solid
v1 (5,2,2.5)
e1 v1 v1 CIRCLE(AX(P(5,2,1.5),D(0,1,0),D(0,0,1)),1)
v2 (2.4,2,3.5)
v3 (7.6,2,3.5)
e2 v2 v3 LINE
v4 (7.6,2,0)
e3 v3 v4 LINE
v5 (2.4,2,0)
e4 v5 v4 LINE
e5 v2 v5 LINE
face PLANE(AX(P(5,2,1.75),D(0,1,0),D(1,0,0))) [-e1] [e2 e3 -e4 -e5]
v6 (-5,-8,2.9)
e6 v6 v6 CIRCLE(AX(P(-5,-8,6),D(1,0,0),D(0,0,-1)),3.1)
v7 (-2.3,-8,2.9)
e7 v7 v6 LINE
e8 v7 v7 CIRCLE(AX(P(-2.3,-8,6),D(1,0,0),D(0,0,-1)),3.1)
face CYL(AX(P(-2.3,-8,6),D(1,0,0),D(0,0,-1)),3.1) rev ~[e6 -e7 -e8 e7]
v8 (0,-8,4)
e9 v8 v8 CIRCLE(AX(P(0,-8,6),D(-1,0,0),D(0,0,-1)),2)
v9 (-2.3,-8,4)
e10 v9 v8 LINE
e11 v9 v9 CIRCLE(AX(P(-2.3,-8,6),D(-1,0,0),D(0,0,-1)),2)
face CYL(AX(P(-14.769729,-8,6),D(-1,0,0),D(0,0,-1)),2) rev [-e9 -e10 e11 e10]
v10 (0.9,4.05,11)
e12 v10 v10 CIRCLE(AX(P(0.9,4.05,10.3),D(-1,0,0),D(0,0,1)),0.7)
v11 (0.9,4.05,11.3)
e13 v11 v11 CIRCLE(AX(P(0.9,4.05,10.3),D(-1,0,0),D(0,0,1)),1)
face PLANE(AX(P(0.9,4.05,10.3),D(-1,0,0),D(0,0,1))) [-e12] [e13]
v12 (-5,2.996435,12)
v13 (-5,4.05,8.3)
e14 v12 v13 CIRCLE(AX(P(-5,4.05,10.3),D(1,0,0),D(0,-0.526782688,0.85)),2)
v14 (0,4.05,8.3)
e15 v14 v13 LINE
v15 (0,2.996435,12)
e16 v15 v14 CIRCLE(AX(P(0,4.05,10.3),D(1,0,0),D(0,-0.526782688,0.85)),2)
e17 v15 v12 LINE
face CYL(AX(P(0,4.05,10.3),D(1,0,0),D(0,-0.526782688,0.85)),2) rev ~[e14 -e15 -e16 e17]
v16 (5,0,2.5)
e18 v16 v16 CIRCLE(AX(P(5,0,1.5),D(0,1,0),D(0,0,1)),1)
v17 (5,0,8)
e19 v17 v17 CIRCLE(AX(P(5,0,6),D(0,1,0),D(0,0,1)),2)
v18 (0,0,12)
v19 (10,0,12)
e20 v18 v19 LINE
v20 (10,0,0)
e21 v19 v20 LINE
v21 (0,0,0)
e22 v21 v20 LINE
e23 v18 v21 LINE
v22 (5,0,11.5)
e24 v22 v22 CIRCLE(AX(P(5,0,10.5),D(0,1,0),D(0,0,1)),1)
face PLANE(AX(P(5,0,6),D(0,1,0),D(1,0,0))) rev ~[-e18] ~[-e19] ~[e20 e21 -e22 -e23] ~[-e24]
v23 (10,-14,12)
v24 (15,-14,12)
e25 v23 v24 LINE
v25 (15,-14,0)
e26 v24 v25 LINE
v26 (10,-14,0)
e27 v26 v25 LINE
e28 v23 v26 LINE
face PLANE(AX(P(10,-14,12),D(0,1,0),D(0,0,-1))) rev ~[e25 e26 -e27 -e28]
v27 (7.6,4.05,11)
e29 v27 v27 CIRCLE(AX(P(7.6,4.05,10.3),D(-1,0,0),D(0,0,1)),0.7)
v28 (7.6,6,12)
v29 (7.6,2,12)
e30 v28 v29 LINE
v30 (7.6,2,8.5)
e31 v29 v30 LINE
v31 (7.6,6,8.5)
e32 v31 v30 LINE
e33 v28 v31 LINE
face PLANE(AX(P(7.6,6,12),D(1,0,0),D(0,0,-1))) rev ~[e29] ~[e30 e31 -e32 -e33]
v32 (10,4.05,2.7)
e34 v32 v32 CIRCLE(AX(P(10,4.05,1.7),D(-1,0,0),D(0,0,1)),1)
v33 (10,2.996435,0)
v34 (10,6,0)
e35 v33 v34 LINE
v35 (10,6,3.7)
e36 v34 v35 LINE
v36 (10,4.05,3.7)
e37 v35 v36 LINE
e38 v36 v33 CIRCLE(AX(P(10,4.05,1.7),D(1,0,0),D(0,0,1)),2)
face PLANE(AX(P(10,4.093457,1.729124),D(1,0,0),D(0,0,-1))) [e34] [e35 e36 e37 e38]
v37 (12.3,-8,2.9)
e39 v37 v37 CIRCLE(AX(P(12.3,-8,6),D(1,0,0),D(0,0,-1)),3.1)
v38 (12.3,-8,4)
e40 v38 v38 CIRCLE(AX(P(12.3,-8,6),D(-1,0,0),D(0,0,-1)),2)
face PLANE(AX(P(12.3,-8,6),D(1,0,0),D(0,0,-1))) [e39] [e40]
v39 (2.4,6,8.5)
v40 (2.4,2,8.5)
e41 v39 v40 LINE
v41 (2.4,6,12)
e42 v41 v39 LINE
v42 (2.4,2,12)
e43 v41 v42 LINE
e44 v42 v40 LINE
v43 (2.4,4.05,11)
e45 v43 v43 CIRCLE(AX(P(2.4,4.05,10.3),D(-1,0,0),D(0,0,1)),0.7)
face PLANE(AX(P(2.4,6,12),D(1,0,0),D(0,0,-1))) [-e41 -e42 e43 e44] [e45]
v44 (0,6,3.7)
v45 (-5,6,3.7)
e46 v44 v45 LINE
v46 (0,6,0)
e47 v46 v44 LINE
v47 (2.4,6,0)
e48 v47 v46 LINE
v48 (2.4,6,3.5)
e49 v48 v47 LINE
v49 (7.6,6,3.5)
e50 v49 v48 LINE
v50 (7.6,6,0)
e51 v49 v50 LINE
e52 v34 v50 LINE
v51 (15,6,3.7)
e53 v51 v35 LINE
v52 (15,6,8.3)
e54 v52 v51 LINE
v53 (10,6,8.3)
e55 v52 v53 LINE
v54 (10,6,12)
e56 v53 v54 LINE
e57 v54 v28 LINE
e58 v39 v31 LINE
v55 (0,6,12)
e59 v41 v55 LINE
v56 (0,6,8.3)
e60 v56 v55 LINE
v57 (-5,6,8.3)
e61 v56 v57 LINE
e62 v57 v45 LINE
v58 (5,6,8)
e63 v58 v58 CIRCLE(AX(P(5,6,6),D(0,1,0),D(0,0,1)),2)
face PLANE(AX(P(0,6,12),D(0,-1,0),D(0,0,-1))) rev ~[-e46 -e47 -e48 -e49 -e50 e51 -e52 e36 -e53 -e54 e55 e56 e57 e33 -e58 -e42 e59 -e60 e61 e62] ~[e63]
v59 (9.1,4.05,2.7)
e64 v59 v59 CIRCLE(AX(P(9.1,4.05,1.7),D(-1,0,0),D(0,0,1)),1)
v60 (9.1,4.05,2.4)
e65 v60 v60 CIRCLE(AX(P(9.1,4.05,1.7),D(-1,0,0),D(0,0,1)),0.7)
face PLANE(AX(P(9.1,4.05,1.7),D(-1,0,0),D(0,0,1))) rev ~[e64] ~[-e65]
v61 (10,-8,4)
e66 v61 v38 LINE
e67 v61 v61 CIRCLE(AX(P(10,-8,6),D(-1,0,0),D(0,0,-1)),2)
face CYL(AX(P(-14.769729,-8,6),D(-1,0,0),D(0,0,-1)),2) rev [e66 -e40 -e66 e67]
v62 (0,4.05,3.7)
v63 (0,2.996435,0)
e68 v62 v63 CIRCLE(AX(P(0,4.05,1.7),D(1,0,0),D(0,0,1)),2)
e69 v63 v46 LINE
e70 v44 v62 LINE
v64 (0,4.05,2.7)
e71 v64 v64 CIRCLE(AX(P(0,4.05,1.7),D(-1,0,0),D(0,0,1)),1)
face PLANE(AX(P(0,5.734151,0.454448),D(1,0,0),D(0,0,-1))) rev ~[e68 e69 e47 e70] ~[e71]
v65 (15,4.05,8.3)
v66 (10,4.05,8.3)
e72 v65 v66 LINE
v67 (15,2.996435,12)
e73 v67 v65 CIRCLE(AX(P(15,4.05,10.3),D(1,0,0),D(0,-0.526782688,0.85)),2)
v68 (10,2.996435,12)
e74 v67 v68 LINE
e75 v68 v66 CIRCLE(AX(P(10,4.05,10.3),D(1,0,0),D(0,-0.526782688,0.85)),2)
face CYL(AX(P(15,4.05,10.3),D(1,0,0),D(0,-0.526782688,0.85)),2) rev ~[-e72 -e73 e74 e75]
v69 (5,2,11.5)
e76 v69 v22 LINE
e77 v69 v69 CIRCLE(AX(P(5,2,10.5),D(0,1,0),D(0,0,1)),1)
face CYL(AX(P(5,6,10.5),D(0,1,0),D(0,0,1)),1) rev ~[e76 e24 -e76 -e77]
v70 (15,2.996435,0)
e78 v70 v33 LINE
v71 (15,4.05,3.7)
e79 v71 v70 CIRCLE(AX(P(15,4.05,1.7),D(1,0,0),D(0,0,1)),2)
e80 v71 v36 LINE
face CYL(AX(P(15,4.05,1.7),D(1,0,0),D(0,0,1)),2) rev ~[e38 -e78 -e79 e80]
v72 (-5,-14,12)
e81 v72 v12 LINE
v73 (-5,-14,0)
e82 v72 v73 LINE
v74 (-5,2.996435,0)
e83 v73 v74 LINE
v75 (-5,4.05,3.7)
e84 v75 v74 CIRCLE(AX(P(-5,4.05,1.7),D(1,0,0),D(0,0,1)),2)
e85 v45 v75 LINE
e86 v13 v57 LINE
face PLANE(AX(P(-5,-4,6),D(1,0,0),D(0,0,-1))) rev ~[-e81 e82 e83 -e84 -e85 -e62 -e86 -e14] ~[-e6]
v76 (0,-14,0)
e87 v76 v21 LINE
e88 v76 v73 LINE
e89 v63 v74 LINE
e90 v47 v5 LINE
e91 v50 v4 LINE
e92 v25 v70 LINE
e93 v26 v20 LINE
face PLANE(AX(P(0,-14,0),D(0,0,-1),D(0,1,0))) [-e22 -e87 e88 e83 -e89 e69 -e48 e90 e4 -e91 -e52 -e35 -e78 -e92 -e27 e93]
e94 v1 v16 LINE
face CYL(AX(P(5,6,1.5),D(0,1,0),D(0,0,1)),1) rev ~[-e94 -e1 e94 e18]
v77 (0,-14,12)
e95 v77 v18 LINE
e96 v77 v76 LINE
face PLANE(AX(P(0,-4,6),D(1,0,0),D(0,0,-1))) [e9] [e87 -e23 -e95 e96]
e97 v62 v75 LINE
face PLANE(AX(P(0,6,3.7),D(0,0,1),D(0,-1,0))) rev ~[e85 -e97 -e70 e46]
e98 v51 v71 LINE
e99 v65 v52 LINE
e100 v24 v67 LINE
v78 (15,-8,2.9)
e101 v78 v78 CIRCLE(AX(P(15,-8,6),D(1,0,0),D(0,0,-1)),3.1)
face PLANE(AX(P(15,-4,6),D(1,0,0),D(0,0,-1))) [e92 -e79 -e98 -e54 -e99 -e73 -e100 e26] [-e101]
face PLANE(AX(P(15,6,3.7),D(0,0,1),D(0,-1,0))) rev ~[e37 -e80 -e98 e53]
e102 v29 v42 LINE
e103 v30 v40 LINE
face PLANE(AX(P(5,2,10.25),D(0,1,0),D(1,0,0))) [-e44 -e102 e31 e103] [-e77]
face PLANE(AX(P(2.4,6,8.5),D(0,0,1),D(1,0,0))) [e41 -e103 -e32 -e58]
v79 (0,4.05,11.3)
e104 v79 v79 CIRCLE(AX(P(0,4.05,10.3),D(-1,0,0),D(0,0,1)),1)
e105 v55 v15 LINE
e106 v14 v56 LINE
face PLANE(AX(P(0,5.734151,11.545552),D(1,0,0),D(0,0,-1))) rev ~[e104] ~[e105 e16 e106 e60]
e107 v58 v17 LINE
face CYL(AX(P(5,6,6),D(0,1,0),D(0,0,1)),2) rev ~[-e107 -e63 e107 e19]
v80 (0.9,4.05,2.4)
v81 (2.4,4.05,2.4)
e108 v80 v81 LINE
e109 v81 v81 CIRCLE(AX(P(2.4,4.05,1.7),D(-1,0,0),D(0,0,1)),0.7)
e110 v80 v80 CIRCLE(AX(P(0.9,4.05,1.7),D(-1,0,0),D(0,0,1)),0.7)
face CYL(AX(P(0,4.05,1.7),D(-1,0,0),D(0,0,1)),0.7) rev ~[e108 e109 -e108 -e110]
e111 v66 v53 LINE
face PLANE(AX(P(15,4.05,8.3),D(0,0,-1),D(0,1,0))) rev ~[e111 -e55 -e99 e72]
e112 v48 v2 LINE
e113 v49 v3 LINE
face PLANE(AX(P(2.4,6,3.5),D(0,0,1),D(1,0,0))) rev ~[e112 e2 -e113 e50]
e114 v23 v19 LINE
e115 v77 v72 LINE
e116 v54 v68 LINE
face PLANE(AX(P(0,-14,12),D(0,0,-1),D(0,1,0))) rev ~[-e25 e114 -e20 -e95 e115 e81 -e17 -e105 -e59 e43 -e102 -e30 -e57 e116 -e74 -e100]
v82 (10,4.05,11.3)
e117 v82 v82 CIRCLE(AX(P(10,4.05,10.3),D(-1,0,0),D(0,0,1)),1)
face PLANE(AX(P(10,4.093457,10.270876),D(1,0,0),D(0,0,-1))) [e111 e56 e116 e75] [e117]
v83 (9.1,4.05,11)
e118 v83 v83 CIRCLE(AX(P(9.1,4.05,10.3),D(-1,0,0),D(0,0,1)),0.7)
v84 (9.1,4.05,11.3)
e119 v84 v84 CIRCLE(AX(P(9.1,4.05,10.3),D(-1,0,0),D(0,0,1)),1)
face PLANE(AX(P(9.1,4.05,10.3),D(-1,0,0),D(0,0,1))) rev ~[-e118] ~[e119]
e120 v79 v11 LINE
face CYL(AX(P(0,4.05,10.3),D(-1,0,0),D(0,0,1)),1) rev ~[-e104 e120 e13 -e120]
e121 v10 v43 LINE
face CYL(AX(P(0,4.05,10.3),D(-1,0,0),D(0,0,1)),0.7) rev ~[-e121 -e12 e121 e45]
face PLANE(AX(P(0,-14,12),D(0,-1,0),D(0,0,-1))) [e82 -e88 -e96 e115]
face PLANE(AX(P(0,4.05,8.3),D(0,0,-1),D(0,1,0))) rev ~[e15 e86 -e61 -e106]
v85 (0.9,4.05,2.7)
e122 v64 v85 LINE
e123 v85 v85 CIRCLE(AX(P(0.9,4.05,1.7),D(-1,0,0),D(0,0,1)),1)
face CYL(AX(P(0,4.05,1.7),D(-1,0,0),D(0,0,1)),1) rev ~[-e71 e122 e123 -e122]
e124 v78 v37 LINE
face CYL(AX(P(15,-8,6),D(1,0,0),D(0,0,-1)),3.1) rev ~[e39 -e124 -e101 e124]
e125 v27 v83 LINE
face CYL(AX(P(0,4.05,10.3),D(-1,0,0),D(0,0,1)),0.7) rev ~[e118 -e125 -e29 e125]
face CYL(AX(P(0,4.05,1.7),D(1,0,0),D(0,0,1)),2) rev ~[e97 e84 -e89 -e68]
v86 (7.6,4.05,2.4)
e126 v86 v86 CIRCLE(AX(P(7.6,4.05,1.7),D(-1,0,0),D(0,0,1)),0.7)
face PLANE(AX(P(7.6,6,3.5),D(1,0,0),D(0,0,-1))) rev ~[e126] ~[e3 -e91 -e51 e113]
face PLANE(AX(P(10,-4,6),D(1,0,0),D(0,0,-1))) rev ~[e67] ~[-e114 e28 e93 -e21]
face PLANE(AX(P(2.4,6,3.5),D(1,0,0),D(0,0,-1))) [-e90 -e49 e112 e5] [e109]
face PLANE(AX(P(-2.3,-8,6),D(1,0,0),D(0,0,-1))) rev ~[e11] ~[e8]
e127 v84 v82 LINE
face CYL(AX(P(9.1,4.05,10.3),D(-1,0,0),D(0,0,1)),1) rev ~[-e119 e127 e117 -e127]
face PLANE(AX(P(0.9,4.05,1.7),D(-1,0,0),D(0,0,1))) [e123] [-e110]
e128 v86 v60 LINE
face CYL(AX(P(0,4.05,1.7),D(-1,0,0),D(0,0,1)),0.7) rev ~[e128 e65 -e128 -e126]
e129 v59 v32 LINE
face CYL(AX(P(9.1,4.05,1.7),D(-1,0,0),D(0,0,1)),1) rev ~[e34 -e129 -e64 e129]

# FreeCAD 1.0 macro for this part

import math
import FreeCAD as App
import Part
import Sketcher
from FreeCAD import Vector

doc = App.newDocument("Part")
params = doc.addObject("Spreadsheet::Sheet", "Params")
for row, (alias, value) in enumerate([
    ("sketch1_width", "10 mm"),
    ("sketch1_height", "12 mm"),
    ("pad1_length", "6 mm"),
    ("sketch2_diameter", "2 mm"),
    ("sketch3_diameter", "4 mm"),
    ("pocket2_length", "4 mm"),
    ("sketch4_diameter", "4 mm"),
    ("sketch5_width", "5.2 mm"),
    ("sketch5_height", "3.5 mm"),
    ("pocket4_length", "4 mm"),
    ("sketch6_diameter", "1.4 mm"),
    ("sketch7_diameter", "2 mm"),
    ("pocket6_length", "0.9 mm"),
    ("sketch8_diameter", "2 mm"),
    ("pocket7_length", "0.9 mm"),
    ("sketch9_width", "20 mm"),
    ("sketch9_height", "12 mm"),
    ("pad2_length", "5 mm"),
    ("sketch10_radius", "2 mm"),
    ("sketch10_height", "3.7 mm"),
    ("sketch10_width", "1.95 mm"),
    ("pocket8_length", "5 mm"),
    ("sketch11_width", "20 mm"),
    ("sketch11_height", "12 mm"),
    ("pad3_length", "5 mm"),
    ("sketch12_radius", "2 mm"),
    ("sketch12_height", "3.7 mm"),
    ("sketch12_width", "1.95 mm"),
    ("pocket9_length", "5 mm"),
    ("sketch13_diameter", "4 mm"),
    ("sketch14_diameter", "6.2 mm"),
    ("pocket11_length", "2.7 mm"),
    ("sketch15_diameter", "6.2 mm"),
    ("pocket12_length", "2.7 mm"),
], start=1):
    params.set(f"A{row}", alias)
    params.set(f"B{row}", "=" + value)
    params.setAlias(f"B{row}", alias)

body = doc.addObject("PartDesign::Body", "Body")

sketch1 = doc.addObject("Sketcher::SketchObject", "Sketch")
body.addObject(sketch1)
sketch1.AttachmentSupport = (doc.XZ_Plane, [""])
sketch1.MapMode = "FlatFace"
sketch1.addGeometry([
    Part.LineSegment(Vector(0, 0, 0), Vector(0, 12, 0)),
    Part.LineSegment(Vector(0, 12, 0), Vector(10, 12, 0)),
    Part.LineSegment(Vector(10, 12, 0), Vector(10, 0, 0)),
    Part.LineSegment(Vector(10, 0, 0), Vector(0, 0, 0)),
], False)
sketch1.addConstraint([
    Sketcher.Constraint("Coincident", 0, 2, 1, 1),
    Sketcher.Constraint("Coincident", 1, 2, 2, 1),
    Sketcher.Constraint("Coincident", 2, 2, 3, 1),
    Sketcher.Constraint("Coincident", 3, 2, 0, 1),
    Sketcher.Constraint("Vertical", 0),
    Sketcher.Constraint("Horizontal", 1),
    Sketcher.Constraint("Vertical", 2),
    Sketcher.Constraint("Horizontal", 3),
    Sketcher.Constraint("Coincident", 3, 2, -1, 1),
    Sketcher.Constraint("DistanceX", 1, 1, 1, 2, 10.0),
    Sketcher.Constraint("DistanceY", 0, 1, 0, 2, 12.0),
])
sketch1.setExpression("Constraints[9]", "Params.sketch1_width")
sketch1.setExpression("Constraints[10]", "Params.sketch1_height")
pad1 = doc.addObject("PartDesign::Pad", "Pad")
body.addObject(pad1)
pad1.Profile = sketch1
pad1.setExpression("Length", "Params.pad1_length")
pad1.Reversed = True

sketch2 = doc.addObject("Sketcher::SketchObject", "Sketch001")
body.addObject(sketch2)
sketch2.AttachmentSupport = (doc.XZ_Plane, [""])
sketch2.MapMode = "FlatFace"
sketch2.AttachmentOffset = App.Placement(Vector(0, 0, -6), App.Rotation())
sketch2.addGeometry([
    Part.Circle(Vector(5, 1.5, 0), Vector(0, 0, 1), 1),
    Part.Circle(Vector(5, 10.5, 0), Vector(0, 0, 1), 1),
], False)
sketch2.addConstraint([
    Sketcher.Constraint("Equal", 0, 1),
    Sketcher.Constraint("Vertical", 0, 3, 1, 3),
    Sketcher.Constraint("Diameter", 0, 2.0),
    Sketcher.Constraint("DistanceX", -1, 1, 0, 3, 5.0),
    Sketcher.Constraint("DistanceY", 0, 3, 1, 3, 9.0),
    Sketcher.Constraint("DistanceY", -1, 1, 0, 3, 1.5),
])
sketch2.setExpression("Constraints[2]", "Params.sketch2_diameter")
pocket1 = doc.addObject("PartDesign::Pocket", "Pocket")
body.addObject(pocket1)
pocket1.Profile = sketch2
pocket1.Type = "ThroughAll"
pocket1.Reversed = True

sketch3 = doc.addObject("Sketcher::SketchObject", "Sketch002")
body.addObject(sketch3)
sketch3.AttachmentSupport = (doc.XZ_Plane, [""])
sketch3.MapMode = "FlatFace"
sketch3.AttachmentOffset = App.Placement(Vector(0, 0, -6), App.Rotation())
sketch3.addGeometry([
    Part.Circle(Vector(5, 1.5, 0), Vector(0, 0, 1), 2),
    Part.Circle(Vector(5, 10.5, 0), Vector(0, 0, 1), 2),
], False)
sketch3.addConstraint([
    Sketcher.Constraint("Equal", 0, 1),
    Sketcher.Constraint("Vertical", 0, 3, 1, 3),
    Sketcher.Constraint("Diameter", 0, 4.0),
    Sketcher.Constraint("DistanceX", -1, 1, 0, 3, 5.0),
    Sketcher.Constraint("DistanceY", 0, 3, 1, 3, 9.0),
    Sketcher.Constraint("DistanceY", -1, 1, 0, 3, 1.5),
])
sketch3.setExpression("Constraints[2]", "Params.sketch3_diameter")
pocket2 = doc.addObject("PartDesign::Pocket", "Pocket001")
body.addObject(pocket2)
pocket2.Profile = sketch3
pocket2.setExpression("Length", "Params.pocket2_length")
pocket2.Reversed = True

sketch4 = doc.addObject("Sketcher::SketchObject", "Sketch003")
body.addObject(sketch4)
sketch4.AttachmentSupport = (doc.XZ_Plane, [""])
sketch4.MapMode = "FlatFace"
sketch4.AttachmentOffset = App.Placement(Vector(0, 0, -6), App.Rotation())
sketch4.addGeometry(Part.Circle(Vector(5, 6, 0), Vector(0, 0, 1), 2), False)
sketch4.addConstraint([
    Sketcher.Constraint("Diameter", 0, 4.0),
    Sketcher.Constraint("DistanceX", -1, 1, 0, 3, 5.0),
    Sketcher.Constraint("DistanceY", -1, 1, 0, 3, 6.0),
])
sketch4.setExpression("Constraints[0]", "Params.sketch4_diameter")
pocket3 = doc.addObject("PartDesign::Pocket", "Pocket002")
body.addObject(pocket3)
pocket3.Profile = sketch4
pocket3.Type = "ThroughAll"
pocket3.Reversed = True

sketch5 = doc.addObject("Sketcher::SketchObject", "Sketch004")
body.addObject(sketch5)
sketch5.AttachmentSupport = (doc.XZ_Plane, [""])
sketch5.MapMode = "FlatFace"
sketch5.AttachmentOffset = App.Placement(Vector(0, 0, -6), App.Rotation())
sketch5.addGeometry([
    Part.LineSegment(Vector(2.4, 0, 0), Vector(2.4, 3.5, 0)),
    Part.LineSegment(Vector(2.4, 3.5, 0), Vector(7.6, 3.5, 0)),
    Part.LineSegment(Vector(7.6, 3.5, 0), Vector(7.6, 0, 0)),
    Part.LineSegment(Vector(7.6, 0, 0), Vector(2.4, 0, 0)),
    Part.LineSegment(Vector(2.4, 8.5, 0), Vector(2.4, 12, 0)),
    Part.LineSegment(Vector(2.4, 12, 0), Vector(7.6, 12, 0)),
    Part.LineSegment(Vector(7.6, 12, 0), Vector(7.6, 8.5, 0)),
    Part.LineSegment(Vector(7.6, 8.5, 0), Vector(2.4, 8.5, 0)),
], False)
sketch5.addConstraint([
    Sketcher.Constraint("Coincident", 0, 2, 1, 1),
    Sketcher.Constraint("Coincident", 1, 2, 2, 1),
    Sketcher.Constraint("Coincident", 2, 2, 3, 1),
    Sketcher.Constraint("Coincident", 3, 2, 0, 1),
    Sketcher.Constraint("Coincident", 4, 2, 5, 1),
    Sketcher.Constraint("Coincident", 5, 2, 6, 1),
    Sketcher.Constraint("Coincident", 6, 2, 7, 1),
    Sketcher.Constraint("Coincident", 7, 2, 4, 1),
    Sketcher.Constraint("Vertical", 0),
    Sketcher.Constraint("Horizontal", 1),
    Sketcher.Constraint("Vertical", 2),
    Sketcher.Constraint("Horizontal", 3),
    Sketcher.Constraint("Vertical", 4),
    Sketcher.Constraint("Horizontal", 5),
    Sketcher.Constraint("Vertical", 6),
    Sketcher.Constraint("Horizontal", 7),
    Sketcher.Constraint("PointOnObject", 2, 2, -1),
    Sketcher.Constraint("Vertical", 3, 2, 4, 2),
    Sketcher.Constraint("Vertical", 2, 2, 5, 2),
    Sketcher.Constraint("Equal", 2, 4),
    Sketcher.Constraint("DistanceX", 1, 1, 1, 2, 5.2),
    Sketcher.Constraint("DistanceY", 0, 1, 0, 2, 3.5),
    Sketcher.Constraint("DistanceY", -1, 1, 4, 2, 12.0),
    Sketcher.Constraint("DistanceX", -1, 1, 0, 2, 2.4),
])
sketch5.setExpression("Constraints[20]", "Params.sketch5_width")
sketch5.setExpression("Constraints[21]", "Params.sketch5_height")
pocket4 = doc.addObject("PartDesign::Pocket", "Pocket003")
body.addObject(pocket4)
pocket4.Profile = sketch5
pocket4.setExpression("Length", "Params.pocket4_length")
pocket4.Reversed = True

sketch6 = doc.addObject("Sketcher::SketchObject", "Sketch005")
body.addObject(sketch6)
sketch6.AttachmentSupport = (doc.YZ_Plane, [""])
sketch6.MapMode = "FlatFace"
sketch6.addGeometry([
    Part.Circle(Vector(4, 1.7, 0), Vector(0, 0, 1), 0.7),
    Part.Circle(Vector(4, 10.3, 0), Vector(0, 0, 1), 0.7),
], False)
sketch6.addConstraint([
    Sketcher.Constraint("Equal", 0, 1),
    Sketcher.Constraint("Vertical", 0, 3, 1, 3),
    Sketcher.Constraint("Diameter", 0, 1.4),
    Sketcher.Constraint("DistanceY", -1, 1, 0, 3, 1.7),
    Sketcher.Constraint("DistanceY", -1, 1, 1, 3, 10.3),
    Sketcher.Constraint("DistanceX", -1, 1, 0, 3, 4.05),
])
sketch6.setExpression("Constraints[2]", "Params.sketch6_diameter")
pocket5 = doc.addObject("PartDesign::Pocket", "Pocket004")
body.addObject(pocket5)
pocket5.Profile = sketch6
pocket5.Type = "ThroughAll"
pocket5.Reversed = True

sketch7 = doc.addObject("Sketcher::SketchObject", "Sketch006")
body.addObject(sketch7)
sketch7.AttachmentSupport = (doc.YZ_Plane, [""])
sketch7.MapMode = "FlatFace"
sketch7.addGeometry([
    Part.Circle(Vector(4, 1.7, 0), Vector(0, 0, 1), 1),
    Part.Circle(Vector(4, 10.3, 0), Vector(0, 0, 1), 1),
], False)
sketch7.addConstraint([
    Sketcher.Constraint("Equal", 0, 1),
    Sketcher.Constraint("Vertical", 0, 3, 1, 3),
    Sketcher.Constraint("Diameter", 0, 2.0),
    Sketcher.Constraint("DistanceY", -1, 1, 0, 3, 1.7),
    Sketcher.Constraint("DistanceY", -1, 1, 1, 3, 10.3),
    Sketcher.Constraint("DistanceX", -1, 1, 0, 3, 4.05),
])
sketch7.setExpression("Constraints[2]", "Params.sketch7_diameter")
pocket6 = doc.addObject("PartDesign::Pocket", "Pocket005")
body.addObject(pocket6)
pocket6.Profile = sketch7
pocket6.setExpression("Length", "Params.pocket6_length")
pocket6.Reversed = True

sketch8 = doc.addObject("Sketcher::SketchObject", "Sketch007")
body.addObject(sketch8)
sketch8.AttachmentSupport = (doc.YZ_Plane, [""])
sketch8.MapMode = "FlatFace"
sketch8.AttachmentOffset = App.Placement(Vector(0, 0, 9.1), App.Rotation())
sketch8.addGeometry([
    Part.Circle(Vector(4, 1.7, 0), Vector(0, 0, 1), 1),
    Part.Circle(Vector(4, 10.3, 0), Vector(0, 0, 1), 1),
], False)
sketch8.addConstraint([
    Sketcher.Constraint("Equal", 0, 1),
    Sketcher.Constraint("Vertical", 0, 3, 1, 3),
    Sketcher.Constraint("Diameter", 0, 2.0),
    Sketcher.Constraint("DistanceY", -1, 1, 0, 3, 1.7),
    Sketcher.Constraint("DistanceY", -1, 1, 1, 3, 10.3),
    Sketcher.Constraint("DistanceX", -1, 1, 0, 3, 4.05),
])
sketch8.setExpression("Constraints[2]", "Params.sketch8_diameter")
pocket7 = doc.addObject("PartDesign::Pocket", "Pocket006")
body.addObject(pocket7)
pocket7.Profile = sketch8
pocket7.setExpression("Length", "Params.pocket7_length")
pocket7.Reversed = True

sketch9 = doc.addObject("Sketcher::SketchObject", "Sketch008")
body.addObject(sketch9)
sketch9.AttachmentSupport = (doc.YZ_Plane, [""])
sketch9.MapMode = "FlatFace"
sketch9.AttachmentOffset = App.Placement(Vector(0, 0, 10), App.Rotation())
sketch9.addGeometry([
    Part.LineSegment(Vector(6, 12, 0), Vector(-14, 12, 0)),
    Part.LineSegment(Vector(-14, 12, 0), Vector(-14, 0, 0)),
    Part.LineSegment(Vector(-14, 0, 0), Vector(6, 0, 0)),
    Part.LineSegment(Vector(6, 0, 0), Vector(6, 12, 0)),
], False)
sketch9.addConstraint([
    Sketcher.Constraint("Coincident", 0, 2, 1, 1),
    Sketcher.Constraint("Coincident", 1, 2, 2, 1),
    Sketcher.Constraint("Coincident", 2, 2, 3, 1),
    Sketcher.Constraint("Coincident", 3, 2, 0, 1),
    Sketcher.Constraint("Horizontal", 0),
    Sketcher.Constraint("Vertical", 1),
    Sketcher.Constraint("Horizontal", 2),
    Sketcher.Constraint("Vertical", 3),
    Sketcher.Constraint("PointOnObject", 1, 2, -1),
    Sketcher.Constraint("DistanceX", 0, 2, 0, 1, 20.0),
    Sketcher.Constraint("DistanceY", 1, 2, 1, 1, 12.0),
    Sketcher.Constraint("DistanceX", 0, 2, -1, 1, 14.0),
])
sketch9.setExpression("Constraints[9]", "Params.sketch9_width")
sketch9.setExpression("Constraints[10]", "Params.sketch9_height")
pad2 = doc.addObject("PartDesign::Pad", "Pad001")
body.addObject(pad2)
pad2.Profile = sketch9
pad2.setExpression("Length", "Params.pad2_length")

sketch10 = doc.addObject("Sketcher::SketchObject", "Sketch009")
body.addObject(sketch10)
sketch10.AttachmentSupport = (doc.YZ_Plane, [""])
sketch10.MapMode = "FlatFace"
sketch10.AttachmentOffset = App.Placement(Vector(0, 0, 15), App.Rotation())
sketch10.addGeometry([
    Part.LineSegment(Vector(6, 12, 0), Vector(3, 12, 0)),
    Part.ArcOfCircle(Part.Circle(Vector(4, 10.3, 0), Vector(0, 0, 1), 2), math.radians(122), math.radians(270)),
    Part.LineSegment(Vector(4, 8.3, 0), Vector(6, 8.3, 0)),
    Part.LineSegment(Vector(6, 8.3, 0), Vector(6, 12, 0)),
    Part.ArcOfCircle(Part.Circle(Vector(4, 1.7, 0), Vector(0, 0, 1), 2), math.radians(90), math.radians(238)),
    Part.LineSegment(Vector(3, 0, 0), Vector(6, 0, 0)),
    Part.LineSegment(Vector(6, 0, 0), Vector(6, 3.7, 0)),
    Part.LineSegment(Vector(6, 3.7, 0), Vector(4, 3.7, 0)),
], False)
sketch10.addConstraint([
    Sketcher.Constraint("Coincident", 0, 2, 1, 1),
    Sketcher.Constraint("Tangent", 1, 2, 2, 1),
    Sketcher.Constraint("Coincident", 2, 2, 3, 1),
    Sketcher.Constraint("Coincident", 3, 2, 0, 1),
    Sketcher.Constraint("Coincident", 4, 2, 5, 1),
    Sketcher.Constraint("Coincident", 5, 2, 6, 1),
    Sketcher.Constraint("Coincident", 6, 2, 7, 1),
    Sketcher.Constraint("Tangent", 7, 2, 4, 1),
    Sketcher.Constraint("Horizontal", 0),
    Sketcher.Constraint("Horizontal", 2),
    Sketcher.Constraint("Vertical", 3),
    Sketcher.Constraint("Horizontal", 5),
    Sketcher.Constraint("Vertical", 6),
    Sketcher.Constraint("Horizontal", 7),
    Sketcher.Constraint("Equal", 1, 4),
    Sketcher.Constraint("PointOnObject", 4, 2, -1),
    Sketcher.Constraint("Vertical", 1, 3, 4, 3),
    Sketcher.Constraint("Vertical", 0, 2, 4, 2),
    Sketcher.Constraint("Vertical", 3, 2, 5, 2),
    Sketcher.Constraint("Radius", 1, 2.0),
    Sketcher.Constraint("DistanceY", 3, 1, 3, 2, 3.7),
    Sketcher.Constraint("DistanceY", -1, 1, 0, 2, 12.0),
    Sketcher.Constraint("DistanceX", -1, 1, 2, 2, 6.0),
    Sketcher.Constraint("DistanceX", 2, 1, 2, 2, 1.95),
])
sketch10.setExpression("Constraints[19]", "Params.sketch10_radius")
sketch10.setExpression("Constraints[20]", "Params.sketch10_height")
sketch10.setExpression("Constraints[23]", "Params.sketch10_width")
pocket8 = doc.addObject("PartDesign::Pocket", "Pocket007")
body.addObject(pocket8)
pocket8.Profile = sketch10
pocket8.setExpression("Length", "Params.pocket8_length")

sketch11 = doc.addObject("Sketcher::SketchObject", "Sketch010")
body.addObject(sketch11)
sketch11.AttachmentSupport = (doc.YZ_Plane, [""])
sketch11.MapMode = "FlatFace"
sketch11.addGeometry([
    Part.LineSegment(Vector(6, 12, 0), Vector(-14, 12, 0)),
    Part.LineSegment(Vector(-14, 12, 0), Vector(-14, 0, 0)),
    Part.LineSegment(Vector(-14, 0, 0), Vector(6, 0, 0)),
    Part.LineSegment(Vector(6, 0, 0), Vector(6, 12, 0)),
], False)
sketch11.addConstraint([
    Sketcher.Constraint("Coincident", 0, 2, 1, 1),
    Sketcher.Constraint("Coincident", 1, 2, 2, 1),
    Sketcher.Constraint("Coincident", 2, 2, 3, 1),
    Sketcher.Constraint("Coincident", 3, 2, 0, 1),
    Sketcher.Constraint("Horizontal", 0),
    Sketcher.Constraint("Vertical", 1),
    Sketcher.Constraint("Horizontal", 2),
    Sketcher.Constraint("Vertical", 3),
    Sketcher.Constraint("PointOnObject", 1, 2, -1),
    Sketcher.Constraint("DistanceX", 0, 2, 0, 1, 20.0),
    Sketcher.Constraint("DistanceY", 1, 2, 1, 1, 12.0),
    Sketcher.Constraint("DistanceX", 0, 2, -1, 1, 14.0),
])
sketch11.setExpression("Constraints[9]", "Params.sketch11_width")
sketch11.setExpression("Constraints[10]", "Params.sketch11_height")
pad3 = doc.addObject("PartDesign::Pad", "Pad002")
body.addObject(pad3)
pad3.Profile = sketch11
pad3.setExpression("Length", "Params.pad3_length")
pad3.Reversed = True

sketch12 = doc.addObject("Sketcher::SketchObject", "Sketch011")
body.addObject(sketch12)
sketch12.AttachmentSupport = (doc.YZ_Plane, [""])
sketch12.MapMode = "FlatFace"
sketch12.addGeometry([
    Part.ArcOfCircle(Part.Circle(Vector(4, 10.3, 0), Vector(0, 0, 1), 2), math.radians(122), math.radians(270)),
    Part.LineSegment(Vector(4, 8.3, 0), Vector(6, 8.3, 0)),
    Part.LineSegment(Vector(6, 8.3, 0), Vector(6, 12, 0)),
    Part.LineSegment(Vector(6, 12, 0), Vector(3, 12, 0)),
    Part.LineSegment(Vector(6, 3.7, 0), Vector(4, 3.7, 0)),
    Part.ArcOfCircle(Part.Circle(Vector(4, 1.7, 0), Vector(0, 0, 1), 2), math.radians(90), math.radians(238)),
    Part.LineSegment(Vector(3, 0, 0), Vector(6, 0, 0)),
    Part.LineSegment(Vector(6, 0, 0), Vector(6, 3.7, 0)),
], False)
sketch12.addConstraint([
    Sketcher.Constraint("Tangent", 0, 2, 1, 1),
    Sketcher.Constraint("Coincident", 1, 2, 2, 1),
    Sketcher.Constraint("Coincident", 2, 2, 3, 1),
    Sketcher.Constraint("Coincident", 3, 2, 0, 1),
    Sketcher.Constraint("Tangent", 4, 2, 5, 1),
    Sketcher.Constraint("Coincident", 5, 2, 6, 1),
    Sketcher.Constraint("Coincident", 6, 2, 7, 1),
    Sketcher.Constraint("Coincident", 7, 2, 4, 1),
    Sketcher.Constraint("Horizontal", 1),
    Sketcher.Constraint("Vertical", 2),
    Sketcher.Constraint("Horizontal", 3),
    Sketcher.Constraint("Horizontal", 4),
    Sketcher.Constraint("Horizontal", 6),
    Sketcher.Constraint("Vertical", 7),
    Sketcher.Constraint("Equal", 0, 5),
    Sketcher.Constraint("PointOnObject", 5, 2, -1),
    Sketcher.Constraint("Vertical", 0, 3, 5, 3),
    Sketcher.Constraint("Vertical", 3, 2, 5, 2),
    Sketcher.Constraint("Vertical", 2, 2, 6, 2),
    Sketcher.Constraint("Radius", 0, 2.0),
    Sketcher.Constraint("DistanceY", 2, 1, 2, 2, 3.7),
    Sketcher.Constraint("DistanceX", -1, 1, 1, 2, 6.0),
    Sketcher.Constraint("DistanceY", -1, 1, 2, 2, 12.0),
    Sketcher.Constraint("DistanceX", 1, 1, 1, 2, 1.95),
])
sketch12.setExpression("Constraints[19]", "Params.sketch12_radius")
sketch12.setExpression("Constraints[20]", "Params.sketch12_height")
sketch12.setExpression("Constraints[23]", "Params.sketch12_width")
pocket9 = doc.addObject("PartDesign::Pocket", "Pocket008")
body.addObject(pocket9)
pocket9.Profile = sketch12
pocket9.setExpression("Length", "Params.pocket9_length")

sketch13 = doc.addObject("Sketcher::SketchObject", "Sketch012")
body.addObject(sketch13)
sketch13.AttachmentSupport = (doc.YZ_Plane, [""])
sketch13.MapMode = "FlatFace"
sketch13.AttachmentOffset = App.Placement(Vector(0, 0, 10), App.Rotation())
sketch13.addGeometry(Part.Circle(Vector(-8, 6, 0), Vector(0, 0, 1), 2), False)
sketch13.addConstraint([
    Sketcher.Constraint("Diameter", 0, 4.0),
    Sketcher.Constraint("DistanceX", 0, 3, -1, 1, 8.0),
    Sketcher.Constraint("DistanceY", -1, 1, 0, 3, 6.0),
])
sketch13.setExpression("Constraints[0]", "Params.sketch13_diameter")
pocket10 = doc.addObject("PartDesign::Pocket", "Pocket009")
body.addObject(pocket10)
pocket10.Profile = sketch13
pocket10.Type = "ThroughAll"
pocket10.Midplane = True

sketch14 = doc.addObject("Sketcher::SketchObject", "Sketch013")
body.addObject(sketch14)
sketch14.AttachmentSupport = (doc.YZ_Plane, [""])
sketch14.MapMode = "FlatFace"
sketch14.AttachmentOffset = App.Placement(Vector(0, 0, 15), App.Rotation())
sketch14.addGeometry(Part.Circle(Vector(-8, 6, 0), Vector(0, 0, 1), 3.1), False)
sketch14.addConstraint([
    Sketcher.Constraint("Diameter", 0, 6.2),
    Sketcher.Constraint("DistanceX", 0, 3, -1, 1, 8.0),
    Sketcher.Constraint("DistanceY", -1, 1, 0, 3, 6.0),
])
sketch14.setExpression("Constraints[0]", "Params.sketch14_diameter")
pocket11 = doc.addObject("PartDesign::Pocket", "Pocket010")
body.addObject(pocket11)
pocket11.Profile = sketch14
pocket11.setExpression("Length", "Params.pocket11_length")

sketch15 = doc.addObject("Sketcher::SketchObject", "Sketch014")
body.addObject(sketch15)
sketch15.AttachmentSupport = (doc.YZ_Plane, [""])
sketch15.MapMode = "FlatFace"
sketch15.AttachmentOffset = App.Placement(Vector(0, 0, -2.3), App.Rotation())
sketch15.addGeometry(Part.Circle(Vector(-8, 6, 0), Vector(0, 0, 1), 3.1), False)
sketch15.addConstraint([
    Sketcher.Constraint("Diameter", 0, 6.2),
    Sketcher.Constraint("DistanceX", 0, 3, -1, 1, 8.0),
    Sketcher.Constraint("DistanceY", -1, 1, 0, 3, 6.0),
])
sketch15.setExpression("Constraints[0]", "Params.sketch15_diameter")
pocket12 = doc.addObject("PartDesign::Pocket", "Pocket011")
body.addObject(pocket12)
pocket12.Profile = sketch15
pocket12.setExpression("Length", "Params.pocket12_length")

doc.recompute()
